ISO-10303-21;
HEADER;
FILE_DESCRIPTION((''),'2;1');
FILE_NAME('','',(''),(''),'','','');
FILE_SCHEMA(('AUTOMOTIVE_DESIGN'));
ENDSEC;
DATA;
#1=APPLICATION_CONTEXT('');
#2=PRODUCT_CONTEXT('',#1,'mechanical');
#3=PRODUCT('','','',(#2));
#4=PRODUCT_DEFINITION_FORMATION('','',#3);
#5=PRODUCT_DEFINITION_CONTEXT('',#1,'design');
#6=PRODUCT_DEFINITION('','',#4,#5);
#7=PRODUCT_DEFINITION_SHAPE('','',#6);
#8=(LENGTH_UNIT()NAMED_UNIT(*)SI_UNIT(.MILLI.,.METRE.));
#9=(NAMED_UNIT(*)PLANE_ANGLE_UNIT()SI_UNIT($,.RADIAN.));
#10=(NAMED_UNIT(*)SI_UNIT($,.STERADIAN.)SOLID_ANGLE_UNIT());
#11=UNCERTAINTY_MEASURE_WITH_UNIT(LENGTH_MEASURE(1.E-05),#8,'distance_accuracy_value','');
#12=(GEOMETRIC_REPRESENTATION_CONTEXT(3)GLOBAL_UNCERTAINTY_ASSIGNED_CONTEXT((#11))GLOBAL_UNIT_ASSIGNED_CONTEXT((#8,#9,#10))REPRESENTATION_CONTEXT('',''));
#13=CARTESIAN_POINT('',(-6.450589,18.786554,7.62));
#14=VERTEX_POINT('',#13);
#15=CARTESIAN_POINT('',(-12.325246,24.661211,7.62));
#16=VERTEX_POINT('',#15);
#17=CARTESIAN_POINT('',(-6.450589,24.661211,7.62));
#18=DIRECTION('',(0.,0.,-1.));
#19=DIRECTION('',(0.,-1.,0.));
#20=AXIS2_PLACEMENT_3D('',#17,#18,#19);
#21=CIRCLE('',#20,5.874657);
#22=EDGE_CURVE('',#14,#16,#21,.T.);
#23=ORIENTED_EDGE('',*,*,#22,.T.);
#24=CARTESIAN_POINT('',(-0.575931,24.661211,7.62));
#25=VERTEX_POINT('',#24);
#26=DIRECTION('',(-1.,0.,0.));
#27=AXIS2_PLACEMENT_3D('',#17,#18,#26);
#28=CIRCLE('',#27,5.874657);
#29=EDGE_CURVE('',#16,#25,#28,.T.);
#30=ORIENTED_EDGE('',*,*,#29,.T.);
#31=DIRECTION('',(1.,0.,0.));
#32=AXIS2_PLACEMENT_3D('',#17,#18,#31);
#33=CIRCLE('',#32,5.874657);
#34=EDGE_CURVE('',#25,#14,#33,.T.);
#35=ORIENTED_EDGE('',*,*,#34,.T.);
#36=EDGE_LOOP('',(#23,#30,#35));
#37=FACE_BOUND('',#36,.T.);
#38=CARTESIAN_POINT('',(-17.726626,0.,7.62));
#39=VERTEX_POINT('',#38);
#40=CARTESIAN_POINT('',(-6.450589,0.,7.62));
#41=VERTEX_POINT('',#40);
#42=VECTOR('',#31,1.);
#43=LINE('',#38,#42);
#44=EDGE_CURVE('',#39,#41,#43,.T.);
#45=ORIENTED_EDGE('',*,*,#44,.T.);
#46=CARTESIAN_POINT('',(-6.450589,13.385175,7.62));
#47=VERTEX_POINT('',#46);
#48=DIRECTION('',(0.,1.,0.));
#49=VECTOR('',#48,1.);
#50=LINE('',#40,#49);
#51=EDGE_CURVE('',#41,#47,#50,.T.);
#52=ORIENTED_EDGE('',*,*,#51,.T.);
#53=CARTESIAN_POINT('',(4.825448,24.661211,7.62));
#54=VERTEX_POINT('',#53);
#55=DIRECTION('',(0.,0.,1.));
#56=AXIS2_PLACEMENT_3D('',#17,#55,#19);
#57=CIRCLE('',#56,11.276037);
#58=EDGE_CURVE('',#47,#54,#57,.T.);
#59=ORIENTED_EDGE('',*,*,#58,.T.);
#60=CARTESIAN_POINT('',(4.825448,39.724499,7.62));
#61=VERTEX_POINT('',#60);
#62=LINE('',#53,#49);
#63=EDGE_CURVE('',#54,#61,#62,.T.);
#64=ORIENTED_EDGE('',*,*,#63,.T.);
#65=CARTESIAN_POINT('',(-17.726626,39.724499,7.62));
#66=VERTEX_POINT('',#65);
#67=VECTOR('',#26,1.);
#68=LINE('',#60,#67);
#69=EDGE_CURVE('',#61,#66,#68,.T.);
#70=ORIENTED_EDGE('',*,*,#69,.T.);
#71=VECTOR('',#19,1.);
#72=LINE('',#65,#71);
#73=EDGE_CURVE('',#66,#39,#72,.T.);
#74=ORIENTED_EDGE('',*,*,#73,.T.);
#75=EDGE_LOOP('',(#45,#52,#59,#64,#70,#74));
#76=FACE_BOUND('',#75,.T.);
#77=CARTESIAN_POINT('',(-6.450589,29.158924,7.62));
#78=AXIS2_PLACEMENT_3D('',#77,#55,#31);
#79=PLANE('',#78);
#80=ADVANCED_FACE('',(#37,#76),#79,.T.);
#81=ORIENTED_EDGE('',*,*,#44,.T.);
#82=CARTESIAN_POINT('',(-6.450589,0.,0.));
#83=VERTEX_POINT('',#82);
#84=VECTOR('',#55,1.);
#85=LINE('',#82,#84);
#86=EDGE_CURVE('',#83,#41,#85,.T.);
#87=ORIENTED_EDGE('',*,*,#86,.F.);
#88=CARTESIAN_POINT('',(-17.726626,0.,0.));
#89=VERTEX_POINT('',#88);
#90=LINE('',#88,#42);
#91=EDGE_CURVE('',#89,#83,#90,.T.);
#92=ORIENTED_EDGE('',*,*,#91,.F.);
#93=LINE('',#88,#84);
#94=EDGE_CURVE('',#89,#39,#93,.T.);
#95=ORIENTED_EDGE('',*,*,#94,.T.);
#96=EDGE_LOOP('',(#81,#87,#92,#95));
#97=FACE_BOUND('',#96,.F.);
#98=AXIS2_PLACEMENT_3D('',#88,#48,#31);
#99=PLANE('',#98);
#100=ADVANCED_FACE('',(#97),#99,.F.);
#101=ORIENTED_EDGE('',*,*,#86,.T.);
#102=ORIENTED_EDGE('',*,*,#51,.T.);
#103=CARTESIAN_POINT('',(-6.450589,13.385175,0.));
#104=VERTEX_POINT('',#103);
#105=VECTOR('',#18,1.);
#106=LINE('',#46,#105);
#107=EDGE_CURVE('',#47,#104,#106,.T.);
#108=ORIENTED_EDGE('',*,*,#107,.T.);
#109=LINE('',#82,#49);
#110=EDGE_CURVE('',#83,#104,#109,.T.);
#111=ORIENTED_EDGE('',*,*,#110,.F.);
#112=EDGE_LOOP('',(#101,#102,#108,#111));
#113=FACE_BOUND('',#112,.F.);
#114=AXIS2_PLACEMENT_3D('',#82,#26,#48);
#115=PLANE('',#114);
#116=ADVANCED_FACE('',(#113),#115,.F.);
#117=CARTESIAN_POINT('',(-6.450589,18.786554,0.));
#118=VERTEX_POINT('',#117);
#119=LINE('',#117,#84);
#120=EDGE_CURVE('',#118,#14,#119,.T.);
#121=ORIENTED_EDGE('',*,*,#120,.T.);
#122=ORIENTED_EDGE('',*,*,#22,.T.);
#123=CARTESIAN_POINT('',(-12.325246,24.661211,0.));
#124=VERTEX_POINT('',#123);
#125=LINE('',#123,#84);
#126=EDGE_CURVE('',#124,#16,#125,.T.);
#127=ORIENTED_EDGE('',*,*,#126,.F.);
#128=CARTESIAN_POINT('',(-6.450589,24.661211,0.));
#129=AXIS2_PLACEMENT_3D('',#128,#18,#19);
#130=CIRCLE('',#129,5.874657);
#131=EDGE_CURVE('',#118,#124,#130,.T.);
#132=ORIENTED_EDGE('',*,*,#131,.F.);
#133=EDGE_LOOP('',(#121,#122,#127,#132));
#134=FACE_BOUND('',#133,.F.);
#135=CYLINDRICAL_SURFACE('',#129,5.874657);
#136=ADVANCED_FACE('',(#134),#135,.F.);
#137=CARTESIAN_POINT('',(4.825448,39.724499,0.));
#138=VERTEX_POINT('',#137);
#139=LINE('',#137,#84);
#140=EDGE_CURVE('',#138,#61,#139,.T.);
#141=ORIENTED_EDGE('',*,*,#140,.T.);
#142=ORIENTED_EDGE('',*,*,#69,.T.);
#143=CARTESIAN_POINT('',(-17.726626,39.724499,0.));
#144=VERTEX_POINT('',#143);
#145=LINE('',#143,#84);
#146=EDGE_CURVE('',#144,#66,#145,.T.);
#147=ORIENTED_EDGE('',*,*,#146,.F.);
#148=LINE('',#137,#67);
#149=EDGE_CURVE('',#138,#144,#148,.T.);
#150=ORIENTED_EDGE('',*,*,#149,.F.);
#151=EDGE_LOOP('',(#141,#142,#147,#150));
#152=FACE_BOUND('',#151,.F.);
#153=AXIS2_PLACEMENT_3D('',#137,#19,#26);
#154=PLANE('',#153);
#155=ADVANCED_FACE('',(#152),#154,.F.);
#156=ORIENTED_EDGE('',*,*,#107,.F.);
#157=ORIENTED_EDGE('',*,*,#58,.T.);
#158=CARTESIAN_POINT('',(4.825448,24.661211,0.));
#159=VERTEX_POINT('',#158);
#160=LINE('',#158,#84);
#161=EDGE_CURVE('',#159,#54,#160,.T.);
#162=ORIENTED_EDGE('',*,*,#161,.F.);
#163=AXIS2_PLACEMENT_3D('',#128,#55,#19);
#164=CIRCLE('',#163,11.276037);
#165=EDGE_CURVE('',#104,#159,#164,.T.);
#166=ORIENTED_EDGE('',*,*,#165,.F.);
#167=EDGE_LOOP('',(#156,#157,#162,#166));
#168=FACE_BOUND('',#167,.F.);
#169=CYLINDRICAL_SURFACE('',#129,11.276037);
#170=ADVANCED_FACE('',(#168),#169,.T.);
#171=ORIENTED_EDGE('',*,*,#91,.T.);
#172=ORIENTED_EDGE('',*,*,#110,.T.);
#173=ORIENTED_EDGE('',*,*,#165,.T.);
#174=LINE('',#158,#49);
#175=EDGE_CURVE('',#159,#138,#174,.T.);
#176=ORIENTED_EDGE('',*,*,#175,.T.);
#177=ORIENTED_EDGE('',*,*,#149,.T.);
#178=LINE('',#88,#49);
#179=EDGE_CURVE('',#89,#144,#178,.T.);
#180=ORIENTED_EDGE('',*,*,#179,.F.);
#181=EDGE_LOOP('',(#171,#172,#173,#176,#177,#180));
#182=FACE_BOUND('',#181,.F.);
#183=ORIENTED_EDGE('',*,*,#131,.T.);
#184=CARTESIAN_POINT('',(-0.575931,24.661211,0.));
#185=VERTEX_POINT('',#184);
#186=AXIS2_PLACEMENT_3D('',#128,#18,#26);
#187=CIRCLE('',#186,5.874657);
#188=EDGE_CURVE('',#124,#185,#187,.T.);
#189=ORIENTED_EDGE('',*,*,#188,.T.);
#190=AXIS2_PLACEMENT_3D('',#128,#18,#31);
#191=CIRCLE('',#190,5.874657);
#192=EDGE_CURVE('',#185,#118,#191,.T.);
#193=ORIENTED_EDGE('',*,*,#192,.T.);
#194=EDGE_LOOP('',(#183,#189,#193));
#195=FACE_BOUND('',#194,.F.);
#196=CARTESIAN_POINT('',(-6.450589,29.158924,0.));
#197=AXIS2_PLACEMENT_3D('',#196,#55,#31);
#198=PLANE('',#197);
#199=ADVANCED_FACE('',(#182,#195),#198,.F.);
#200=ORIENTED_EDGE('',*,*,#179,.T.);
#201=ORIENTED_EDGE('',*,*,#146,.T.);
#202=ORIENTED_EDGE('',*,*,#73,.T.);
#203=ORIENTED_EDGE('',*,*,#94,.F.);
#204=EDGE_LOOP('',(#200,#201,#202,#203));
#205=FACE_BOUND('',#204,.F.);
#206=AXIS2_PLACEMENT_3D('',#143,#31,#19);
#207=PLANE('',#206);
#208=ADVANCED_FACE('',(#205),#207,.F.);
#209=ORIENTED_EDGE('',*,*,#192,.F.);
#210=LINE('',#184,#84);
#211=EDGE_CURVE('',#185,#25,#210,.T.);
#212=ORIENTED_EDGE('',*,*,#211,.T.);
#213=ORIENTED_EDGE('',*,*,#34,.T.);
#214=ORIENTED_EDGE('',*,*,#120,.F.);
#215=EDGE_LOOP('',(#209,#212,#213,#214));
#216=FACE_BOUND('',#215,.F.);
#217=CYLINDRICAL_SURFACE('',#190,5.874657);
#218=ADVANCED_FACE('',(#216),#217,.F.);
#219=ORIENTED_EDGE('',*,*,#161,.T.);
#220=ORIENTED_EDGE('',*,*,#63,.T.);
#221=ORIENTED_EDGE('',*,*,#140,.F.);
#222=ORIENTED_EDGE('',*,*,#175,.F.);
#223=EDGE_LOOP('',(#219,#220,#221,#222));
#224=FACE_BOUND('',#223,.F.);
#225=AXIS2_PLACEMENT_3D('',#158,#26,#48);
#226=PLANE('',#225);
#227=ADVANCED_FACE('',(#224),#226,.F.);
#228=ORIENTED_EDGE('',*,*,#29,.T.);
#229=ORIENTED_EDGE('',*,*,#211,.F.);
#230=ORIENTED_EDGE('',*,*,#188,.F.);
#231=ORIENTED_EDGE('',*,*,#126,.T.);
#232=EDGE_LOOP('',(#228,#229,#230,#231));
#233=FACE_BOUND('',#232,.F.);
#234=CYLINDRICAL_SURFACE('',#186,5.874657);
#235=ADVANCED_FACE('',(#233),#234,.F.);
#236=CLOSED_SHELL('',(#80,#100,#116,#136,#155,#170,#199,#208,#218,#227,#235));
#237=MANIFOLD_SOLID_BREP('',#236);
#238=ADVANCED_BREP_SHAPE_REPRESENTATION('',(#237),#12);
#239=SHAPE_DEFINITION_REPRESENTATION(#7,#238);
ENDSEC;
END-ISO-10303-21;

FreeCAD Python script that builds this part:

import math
import FreeCAD as App
import Part
import Sketcher

V = App.Vector

doc = App.newDocument("Part")
params = doc.addObject("Spreadsheet::Sheet", "Params")
for row, (alias, value) in enumerate([
    ("pad1_length", "0.25 in"),
    ("pad2_length", "0.3 in"),
], start=1):
    params.set(f"A{row}", alias)
    params.set(f"B{row}", "=" + value)
    params.setAlias(f"B{row}", alias)

body = doc.addObject("PartDesign::Body", "Body")

sketch1 = body.newObject("Sketcher::SketchObject", "Sketch")
sketch1.AttachmentSupport = (doc.getObject("XY_Plane"), [""])
sketch1.MapMode = "FlatFace"
sketch1.addGeometry(Part.ArcOfCircle(Part.Circle(V(-6, 25, 0), V(0, 0, 1), 11), math.radians(180), math.radians(270)), False)
sketch1.addGeometry(Part.LineSegment(V(-18, 25, 0), V(-18, 0, 0)), False)
sketch1.addGeometry(Part.LineSegment(V(-18, 0, 0), V(-6, 0, 0)), False)
sketch1.addGeometry(Part.LineSegment(V(-6, 0, 0), V(-6, 13, 0)), False)
sketch1.addConstraint(Sketcher.Constraint("Tangent", 0, 1, 1, 1))
sketch1.addConstraint(Sketcher.Constraint("Coincident", 1, 2, 2, 1))
sketch1.addConstraint(Sketcher.Constraint("Coincident", 2, 2, 3, 1))
sketch1.addConstraint(Sketcher.Constraint("Coincident", 3, 2, 0, 2))
sketch1.addConstraint(Sketcher.Constraint("Vertical", 1))
sketch1.addConstraint(Sketcher.Constraint("Horizontal", 2))
sketch1.addConstraint(Sketcher.Constraint("Vertical", 3))
sketch1.addConstraint(Sketcher.Constraint("PointOnObject", 1, 2, -1))
sketch1.addConstraint(Sketcher.Constraint("Vertical", 0, 3, 2, 2))
sketch1.addConstraint(Sketcher.Constraint("Radius", 0, 11.276037))
sketch1.addConstraint(Sketcher.Constraint("DistanceY", 1, 2, 1, 1, 24.661211))
sketch1.addConstraint(Sketcher.Constraint("DistanceX", 0, 3, -1, 1, 6.450589))
pad1 = body.newObject("PartDesign::Pad", "Pad")
pad1.Profile = sketch1
pad1.setExpression("Length", "Params.pad1_length")

sketch2 = body.newObject("Sketcher::SketchObject", "Sketch001")
sketch2.AttachmentSupport = (doc.getObject("XY_Plane"), [""])
sketch2.MapMode = "FlatFace"
sketch2.addGeometry(Part.LineSegment(V(5, 25, 0), V(5, 40, 0)), False)
sketch2.addGeometry(Part.LineSegment(V(5, 40, 0), V(-18, 40, 0)), False)
sketch2.addGeometry(Part.LineSegment(V(-18, 40, 0), V(-18, 0, 0)), False)
sketch2.addGeometry(Part.LineSegment(V(-18, 0, 0), V(-6, 0, 0)), False)
sketch2.addGeometry(Part.LineSegment(V(-6, 0, 0), V(-6, 13, 0)), False)
sketch2.addGeometry(Part.ArcOfCircle(Part.Circle(V(-6, 25, 0), V(0, 0, 1), 11), math.radians(-90), math.radians(0)), False)
sketch2.addGeometry(Part.ArcOfCircle(Part.Circle(V(-6, 25, 0), V(0, 0, 1), 6), math.radians(0), math.radians(180)), False)
sketch2.addGeometry(Part.ArcOfCircle(Part.Circle(V(-6, 25, 0), V(0, 0, 1), 6), math.radians(-90), math.radians(0)), False)
sketch2.addGeometry(Part.ArcOfCircle(Part.Circle(V(-6, 25, 0), V(0, 0, 1), 6), math.radians(180), math.radians(270)), False)
sketch2.addConstraint(Sketcher.Constraint("Coincident", 0, 2, 1, 1))
sketch2.addConstraint(Sketcher.Constraint("Coincident", 1, 2, 2, 1))
sketch2.addConstraint(Sketcher.Constraint("Coincident", 2, 2, 3, 1))
sketch2.addConstraint(Sketcher.Constraint("Coincident", 3, 2, 4, 1))
sketch2.addConstraint(Sketcher.Constraint("Coincident", 4, 2, 5, 1))
sketch2.addConstraint(Sketcher.Constraint("Tangent", 5, 2, 0, 1))
sketch2.addConstraint(Sketcher.Constraint("Tangent", 6, 1, 7, 2))
sketch2.addConstraint(Sketcher.Constraint("Tangent", 7, 1, 8, 2))
sketch2.addConstraint(Sketcher.Constraint("Tangent", 8, 1, 6, 2))
sketch2.addConstraint(Sketcher.Constraint("Vertical", 0))
sketch2.addConstraint(Sketcher.Constraint("Horizontal", 1))
sketch2.addConstraint(Sketcher.Constraint("Vertical", 2))
sketch2.addConstraint(Sketcher.Constraint("Horizontal", 3))
sketch2.addConstraint(Sketcher.Constraint("Vertical", 4))
sketch2.addConstraint(Sketcher.Constraint("Coincident", 6, 3, 5, 3))
sketch2.addConstraint(Sketcher.Constraint("PointOnObject", 2, 2, -1))
sketch2.addConstraint(Sketcher.Constraint("Horizontal", 5, 2, 6, 1))
sketch2.addConstraint(Sketcher.Constraint("Horizontal", 6, 1, 8, 1))
sketch2.addConstraint(Sketcher.Constraint("Vertical", 8, 3, 3, 2))
sketch2.addConstraint(Sketcher.Constraint("Vertical", 4, 2, 7, 1))
sketch2.addConstraint(Sketcher.Constraint("DistanceY", 2, 2, 2, 1, 39.724499))
sketch2.addConstraint(Sketcher.Constraint("Radius", 5, 11.276037))
sketch2.addConstraint(Sketcher.Constraint("Radius", 6, 5.874657))
sketch2.addConstraint(Sketcher.Constraint("DistanceX", 1, 2, 1, 1, 22.552074))
sketch2.addConstraint(Sketcher.Constraint("DistanceY", 0, 1, 0, 2, 15.063288))
sketch2.addConstraint(Sketcher.Constraint("DistanceX", 5, 3, -1, 1, 6.450589))
pad2 = body.newObject("PartDesign::Pad", "Pad001")
pad2.Profile = sketch2
pad2.setExpression("Length", "Params.pad2_length")

doc.recompute()
